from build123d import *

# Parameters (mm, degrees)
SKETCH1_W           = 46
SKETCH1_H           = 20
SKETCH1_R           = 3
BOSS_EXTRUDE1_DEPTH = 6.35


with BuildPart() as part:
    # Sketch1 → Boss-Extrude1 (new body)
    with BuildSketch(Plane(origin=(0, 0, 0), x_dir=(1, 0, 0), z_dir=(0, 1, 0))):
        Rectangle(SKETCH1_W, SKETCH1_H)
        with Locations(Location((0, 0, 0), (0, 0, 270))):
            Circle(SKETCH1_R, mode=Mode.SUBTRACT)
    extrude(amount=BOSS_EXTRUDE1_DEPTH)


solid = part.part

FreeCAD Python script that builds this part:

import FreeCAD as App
import Part
import Sketcher

doc = App.newDocument("Part")
body = doc.addObject("PartDesign::Body", "Body")

# Sketch on XZ plane
sketch1 = doc.addObject("Sketcher::SketchObject", "Sketch")
body.addObject(sketch1)
sketch1.AttachmentSupport = (doc.XZ_Plane, [""])
sketch1.MapMode = "FlatFace"
sketch1.addGeometry(Part.LineSegment(App.Vector(-23, -10, 0), App.Vector(-23, 10, 0)), False)
sketch1.addGeometry(Part.LineSegment(App.Vector(-23, 10, 0), App.Vector(23, 10, 0)), False)
sketch1.addGeometry(Part.LineSegment(App.Vector(23, 10, 0), App.Vector(23, -10, 0)), False)
sketch1.addGeometry(Part.LineSegment(App.Vector(23, -10, 0), App.Vector(-23, -10, 0)), False)
sketch1.addGeometry(Part.Circle(App.Vector(0, 0, 0), App.Vector(0, 0, 1), 3), False)
sketch1.addConstraint(Sketcher.Constraint("Coincident", 0, 2, 1, 1))
sketch1.addConstraint(Sketcher.Constraint("Coincident", 1, 2, 2, 1))
sketch1.addConstraint(Sketcher.Constraint("Coincident", 2, 2, 3, 1))
sketch1.addConstraint(Sketcher.Constraint("Coincident", 3, 2, 0, 1))
sketch1.addConstraint(Sketcher.Constraint("Vertical", 0))
sketch1.addConstraint(Sketcher.Constraint("Horizontal", 1))
sketch1.addConstraint(Sketcher.Constraint("Vertical", 2))
sketch1.addConstraint(Sketcher.Constraint("Horizontal", 3))
sketch1.addConstraint(Sketcher.Constraint("Coincident", 4, 3, -1, 1))
sketch1.addConstraint(Sketcher.Constraint("Symmetric", 0, 2, 2, 2, -1, 1))
sketch1.addConstraint(Sketcher.Constraint("Diameter", 4, 6.0))
sketch1.addConstraint(Sketcher.Constraint("DistanceX", 1, 1, 1, 2, 46.0))
sketch1.addConstraint(Sketcher.Constraint("DistanceY", 0, 1, 0, 2, 20.0))
pad1 = doc.addObject("PartDesign::Pad", "Pad")
body.addObject(pad1)
pad1.Profile = sketch1
pad1.Length = 6.35
pad1.Reversed = True

doc.recompute()
